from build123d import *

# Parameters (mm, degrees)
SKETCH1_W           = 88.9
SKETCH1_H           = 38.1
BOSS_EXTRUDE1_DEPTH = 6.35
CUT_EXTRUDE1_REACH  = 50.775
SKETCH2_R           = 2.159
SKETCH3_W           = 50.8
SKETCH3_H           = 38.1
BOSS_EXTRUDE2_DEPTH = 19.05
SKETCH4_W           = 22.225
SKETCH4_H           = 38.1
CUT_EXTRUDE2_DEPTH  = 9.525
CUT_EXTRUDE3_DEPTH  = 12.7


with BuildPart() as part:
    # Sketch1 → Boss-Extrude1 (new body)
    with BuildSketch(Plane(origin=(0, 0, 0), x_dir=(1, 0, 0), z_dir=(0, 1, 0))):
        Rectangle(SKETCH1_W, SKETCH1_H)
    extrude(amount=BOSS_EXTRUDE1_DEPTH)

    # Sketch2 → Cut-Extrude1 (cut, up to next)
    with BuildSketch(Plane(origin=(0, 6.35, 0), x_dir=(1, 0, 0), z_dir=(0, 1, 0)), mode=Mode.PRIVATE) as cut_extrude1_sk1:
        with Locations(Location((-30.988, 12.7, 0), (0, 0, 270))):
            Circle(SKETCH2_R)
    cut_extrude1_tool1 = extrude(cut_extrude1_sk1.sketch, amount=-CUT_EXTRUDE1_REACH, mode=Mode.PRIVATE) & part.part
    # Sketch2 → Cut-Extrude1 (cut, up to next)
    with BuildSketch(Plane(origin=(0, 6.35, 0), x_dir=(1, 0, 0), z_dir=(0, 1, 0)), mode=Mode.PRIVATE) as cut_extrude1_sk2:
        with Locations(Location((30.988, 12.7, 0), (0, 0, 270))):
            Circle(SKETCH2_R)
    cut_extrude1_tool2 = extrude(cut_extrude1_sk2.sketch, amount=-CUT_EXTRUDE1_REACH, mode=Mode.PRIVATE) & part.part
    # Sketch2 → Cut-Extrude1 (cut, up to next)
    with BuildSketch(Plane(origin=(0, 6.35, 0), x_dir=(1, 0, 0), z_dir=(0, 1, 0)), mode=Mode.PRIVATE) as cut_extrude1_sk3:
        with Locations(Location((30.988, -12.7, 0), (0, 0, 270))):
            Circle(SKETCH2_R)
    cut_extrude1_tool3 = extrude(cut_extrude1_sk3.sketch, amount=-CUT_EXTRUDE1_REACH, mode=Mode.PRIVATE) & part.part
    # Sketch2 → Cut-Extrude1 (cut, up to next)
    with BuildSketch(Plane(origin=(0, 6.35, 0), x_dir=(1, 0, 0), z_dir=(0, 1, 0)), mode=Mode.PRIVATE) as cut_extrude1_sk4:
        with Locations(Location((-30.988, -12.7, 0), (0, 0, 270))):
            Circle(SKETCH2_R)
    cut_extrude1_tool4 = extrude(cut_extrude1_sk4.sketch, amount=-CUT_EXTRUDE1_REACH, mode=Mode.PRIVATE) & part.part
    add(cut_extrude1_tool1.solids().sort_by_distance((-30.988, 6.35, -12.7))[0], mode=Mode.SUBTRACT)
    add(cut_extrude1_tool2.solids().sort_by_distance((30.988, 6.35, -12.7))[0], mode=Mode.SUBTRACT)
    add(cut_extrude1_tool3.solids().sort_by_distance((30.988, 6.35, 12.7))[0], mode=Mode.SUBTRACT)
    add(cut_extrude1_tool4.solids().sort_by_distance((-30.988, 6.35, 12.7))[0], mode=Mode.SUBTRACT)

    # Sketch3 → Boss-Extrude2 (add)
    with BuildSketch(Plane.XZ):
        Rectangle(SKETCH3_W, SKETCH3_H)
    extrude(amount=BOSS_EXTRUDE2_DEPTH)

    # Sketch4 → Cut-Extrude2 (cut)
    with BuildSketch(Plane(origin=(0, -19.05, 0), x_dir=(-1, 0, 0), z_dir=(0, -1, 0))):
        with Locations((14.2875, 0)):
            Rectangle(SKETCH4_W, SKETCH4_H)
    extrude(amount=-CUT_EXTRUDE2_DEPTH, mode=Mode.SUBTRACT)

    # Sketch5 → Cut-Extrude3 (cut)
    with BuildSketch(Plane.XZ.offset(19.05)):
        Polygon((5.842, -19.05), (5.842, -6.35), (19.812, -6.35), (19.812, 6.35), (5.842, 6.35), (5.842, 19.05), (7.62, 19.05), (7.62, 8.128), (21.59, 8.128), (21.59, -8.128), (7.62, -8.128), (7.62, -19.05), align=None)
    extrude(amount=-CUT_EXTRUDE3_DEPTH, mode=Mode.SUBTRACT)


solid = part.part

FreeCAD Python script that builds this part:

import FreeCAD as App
import Part
import Sketcher

V = App.Vector
Q = App.Units.Quantity

doc = App.newDocument("Part")
params = doc.addObject("Spreadsheet::Sheet", "Params")
for row, (alias, value) in enumerate([
    ("sketch1_width", "3.5 in"),
    ("sketch1_height", "1.5 in"),
    ("pad1_length", "0.25 in"),
    ("sketch2_diameter", "0.17 in"),
    ("sketch3_diameter", "0.17 in"),
    ("sketch4_diameter", "0.17 in"),
    ("sketch5_diameter", "0.17 in"),
    ("sketch6_width", "2 in"),
    ("sketch6_height", "1.5 in"),
    ("pad2_length", "0.75 in"),
    ("sketch7_height", "1.5 in"),
    ("sketch7_width", "0.875 in"),
    ("pocket5_length", "0.375 in"),
    ("sketch8_height", "0.5 in"),
    ("sketch8_width", "0.07 in"),
    ("sketch8_width2", "0.55 in"),
    ("sketch8_height2", "0.43 in"),
    ("pocket6_length", "0.5 in"),
], start=1):
    params.set(f"A{row}", alias)
    params.set(f"B{row}", "=" + value)
    params.setAlias(f"B{row}", alias)

body = doc.addObject("PartDesign::Body", "Body")

sketch1 = body.newObject("Sketcher::SketchObject", "Sketch")
sketch1.AttachmentSupport = (doc.getObject("XZ_Plane"), [""])
sketch1.MapMode = "FlatFace"
sketch1.addGeometry([
    Part.LineSegment(V(-44.45, -19.05, 0), V(-44.45, 19.05, 0)),
    Part.LineSegment(V(-44.45, 19.05, 0), V(44.45, 19.05, 0)),
    Part.LineSegment(V(44.45, 19.05, 0), V(44.45, -19.05, 0)),
    Part.LineSegment(V(44.45, -19.05, 0), V(-44.45, -19.05, 0)),
], False)
sketch1.addConstraint([
    Sketcher.Constraint("Coincident", 0, 2, 1, 1),
    Sketcher.Constraint("Coincident", 1, 2, 2, 1),
    Sketcher.Constraint("Coincident", 2, 2, 3, 1),
    Sketcher.Constraint("Coincident", 3, 2, 0, 1),
    Sketcher.Constraint("Vertical", 0),
    Sketcher.Constraint("Horizontal", 1),
    Sketcher.Constraint("Vertical", 2),
    Sketcher.Constraint("Horizontal", 3),
    Sketcher.Constraint("Symmetric", 0, 2, 2, 2, -1, 1),
    Sketcher.Constraint("DistanceX", 1, 1, 1, 2, Q("3.5 in")),
    Sketcher.Constraint("DistanceY", 0, 1, 0, 2, Q("1.5 in")),
])
sketch1.setExpression("Constraints[9]", "Params.sketch1_width")
sketch1.setExpression("Constraints[10]", "Params.sketch1_height")
pad1 = body.newObject("PartDesign::Pad", "Pad")
pad1.Profile = sketch1
pad1.setExpression("Length", "Params.pad1_length")
pad1.Reversed = True

sketch2 = body.newObject("Sketcher::SketchObject", "Sketch001")
sketch2.AttachmentSupport = (doc.getObject("XZ_Plane"), [""])
sketch2.MapMode = "FlatFace"
sketch2.AttachmentOffset = App.Placement(V(0, 0, -0.25 * 25.4), App.Rotation())
sketch2.addGeometry(Part.Circle(V(-30.988, -12.7, 0), V(0, 0, 1), 2.159), False)
sketch2.addConstraint([
    Sketcher.Constraint("Diameter", 0, Q("0.17 in")),
    Sketcher.Constraint("DistanceY", 0, 3, -1, 1, Q("0.5 in")),
    Sketcher.Constraint("DistanceX", 0, 3, -1, 1, Q("1.22 in")),
])
sketch2.setExpression("Constraints[0]", "Params.sketch2_diameter")
pocket1 = body.newObject("PartDesign::Pocket", "Pocket")
pocket1.Profile = sketch2
pocket1.Type = "UpToFirst"
pocket1.Reversed = True

sketch3 = body.newObject("Sketcher::SketchObject", "Sketch002")
sketch3.AttachmentSupport = (doc.getObject("XZ_Plane"), [""])
sketch3.MapMode = "FlatFace"
sketch3.AttachmentOffset = App.Placement(V(0, 0, -0.25 * 25.4), App.Rotation())
sketch3.addGeometry(Part.Circle(V(30.988, -12.7, 0), V(0, 0, 1), 2.159), False)
sketch3.addConstraint([
    Sketcher.Constraint("Diameter", 0, Q("0.17 in")),
    Sketcher.Constraint("DistanceY", 0, 3, -1, 1, Q("0.5 in")),
    Sketcher.Constraint("DistanceX", -1, 1, 0, 3, Q("1.22 in")),
])
sketch3.setExpression("Constraints[0]", "Params.sketch3_diameter")
pocket2 = body.newObject("PartDesign::Pocket", "Pocket001")
pocket2.Profile = sketch3
pocket2.Type = "UpToFirst"
pocket2.Reversed = True

sketch4 = body.newObject("Sketcher::SketchObject", "Sketch003")
sketch4.AttachmentSupport = (doc.getObject("XZ_Plane"), [""])
sketch4.MapMode = "FlatFace"
sketch4.AttachmentOffset = App.Placement(V(0, 0, -0.25 * 25.4), App.Rotation())
sketch4.addGeometry(Part.Circle(V(30.988, 12.7, 0), V(0, 0, 1), 2.159), False)
sketch4.addConstraint([
    Sketcher.Constraint("Diameter", 0, Q("0.17 in")),
    Sketcher.Constraint("DistanceY", -1, 1, 0, 3, Q("0.5 in")),
    Sketcher.Constraint("DistanceX", -1, 1, 0, 3, Q("1.22 in")),
])
sketch4.setExpression("Constraints[0]", "Params.sketch4_diameter")
pocket3 = body.newObject("PartDesign::Pocket", "Pocket002")
pocket3.Profile = sketch4
pocket3.Type = "UpToFirst"
pocket3.Reversed = True

sketch5 = body.newObject("Sketcher::SketchObject", "Sketch004")
sketch5.AttachmentSupport = (doc.getObject("XZ_Plane"), [""])
sketch5.MapMode = "FlatFace"
sketch5.AttachmentOffset = App.Placement(V(0, 0, -0.25 * 25.4), App.Rotation())
sketch5.addGeometry(Part.Circle(V(-30.988, 12.7, 0), V(0, 0, 1), 2.159), False)
sketch5.addConstraint([
    Sketcher.Constraint("Diameter", 0, Q("0.17 in")),
    Sketcher.Constraint("DistanceY", -1, 1, 0, 3, Q("0.5 in")),
    Sketcher.Constraint("DistanceX", 0, 3, -1, 1, Q("1.22 in")),
])
sketch5.setExpression("Constraints[0]", "Params.sketch5_diameter")
pocket4 = body.newObject("PartDesign::Pocket", "Pocket003")
pocket4.Profile = sketch5
pocket4.Type = "UpToFirst"
pocket4.Reversed = True

sketch6 = body.newObject("Sketcher::SketchObject", "Sketch005")
sketch6.AttachmentSupport = (doc.getObject("XZ_Plane"), [""])
sketch6.MapMode = "FlatFace"
sketch6.addGeometry([
    Part.LineSegment(V(-25.4, 19.05, 0), V(-25.4, -19.05, 0)),
    Part.LineSegment(V(-25.4, -19.05, 0), V(25.4, -19.05, 0)),
    Part.LineSegment(V(25.4, -19.05, 0), V(25.4, 19.05, 0)),
    Part.LineSegment(V(25.4, 19.05, 0), V(-25.4, 19.05, 0)),
], False)
sketch6.addConstraint([
    Sketcher.Constraint("Coincident", 0, 2, 1, 1),
    Sketcher.Constraint("Coincident", 1, 2, 2, 1),
    Sketcher.Constraint("Coincident", 2, 2, 3, 1),
    Sketcher.Constraint("Coincident", 3, 2, 0, 1),
    Sketcher.Constraint("Vertical", 0),
    Sketcher.Constraint("Horizontal", 1),
    Sketcher.Constraint("Vertical", 2),
    Sketcher.Constraint("Horizontal", 3),
    Sketcher.Constraint("Symmetric", 0, 2, 2, 2, -1, 1),
    Sketcher.Constraint("DistanceX", 1, 1, 1, 2, Q("2 in")),
    Sketcher.Constraint("DistanceY", 0, 2, 0, 1, Q("1.5 in")),
])
sketch6.setExpression("Constraints[9]", "Params.sketch6_width")
sketch6.setExpression("Constraints[10]", "Params.sketch6_height")
pad2 = body.newObject("PartDesign::Pad", "Pad001")
pad2.Profile = sketch6
pad2.setExpression("Length", "Params.pad2_length")

sketch7 = body.newObject("Sketcher::SketchObject", "Sketch006")
sketch7.AttachmentSupport = (doc.getObject("XZ_Plane"), [""])
sketch7.MapMode = "FlatFace"
sketch7.AttachmentOffset = App.Placement(V(0, 0, 0.75 * 25.4), App.Rotation())
sketch7.addGeometry([
    Part.LineSegment(V(-3.175, -19.05, 0), V(-3.175, 19.05, 0)),
    Part.LineSegment(V(-3.175, 19.05, 0), V(-25.4, 19.05, 0)),
    Part.LineSegment(V(-25.4, 19.05, 0), V(-25.4, -19.05, 0)),
    Part.LineSegment(V(-25.4, -19.05, 0), V(-3.175, -19.05, 0)),
], False)
sketch7.addConstraint([
    Sketcher.Constraint("Coincident", 0, 2, 1, 1),
    Sketcher.Constraint("Coincident", 1, 2, 2, 1),
    Sketcher.Constraint("Coincident", 2, 2, 3, 1),
    Sketcher.Constraint("Coincident", 3, 2, 0, 1),
    Sketcher.Constraint("Vertical", 0),
    Sketcher.Constraint("Horizontal", 1),
    Sketcher.Constraint("Vertical", 2),
    Sketcher.Constraint("Horizontal", 3),
    Sketcher.Constraint("DistanceY", 0, 1, 0, 2, Q("1.5 in")),
    Sketcher.Constraint("DistanceX", 1, 2, -1, 1, Q("1 in")),
    Sketcher.Constraint("DistanceX", 1, 2, 1, 1, Q("0.875 in")),
    Sketcher.Constraint("DistanceY", -1, 1, 0, 2, Q("0.75 in")),
])
sketch7.setExpression("Constraints[8]", "Params.sketch7_height")
sketch7.setExpression("Constraints[10]", "Params.sketch7_width")
pocket5 = body.newObject("PartDesign::Pocket", "Pocket004")
pocket5.Profile = sketch7
pocket5.setExpression("Length", "Params.pocket5_length")

sketch8 = body.newObject("Sketcher::SketchObject", "Sketch007")
sketch8.AttachmentSupport = (doc.getObject("XZ_Plane"), [""])
sketch8.MapMode = "FlatFace"
sketch8.AttachmentOffset = App.Placement(V(0, 0, 0.75 * 25.4), App.Rotation())
sketch8.addGeometry([
    Part.LineSegment(V(5.842, -6.35, 0), V(5.842, -19.05, 0)),
    Part.LineSegment(V(5.842, -19.05, 0), V(7.62, -19.05, 0)),
    Part.LineSegment(V(7.62, -19.05, 0), V(7.62, -8.128, 0)),
    Part.LineSegment(V(7.62, -8.128, 0), V(21.59, -8.128, 0)),
    Part.LineSegment(V(21.59, -8.128, 0), V(21.59, 8.128, 0)),
    Part.LineSegment(V(21.59, 8.128, 0), V(7.62, 8.128, 0)),
    Part.LineSegment(V(7.62, 8.128, 0), V(7.62, 19.05, 0)),
    Part.LineSegment(V(7.62, 19.05, 0), V(5.842, 19.05, 0)),
    Part.LineSegment(V(5.842, 19.05, 0), V(5.842, 6.35, 0)),
    Part.LineSegment(V(5.842, 6.35, 0), V(19.812, 6.35, 0)),
    Part.LineSegment(V(19.812, 6.35, 0), V(19.812, -6.35, 0)),
    Part.LineSegment(V(19.812, -6.35, 0), V(5.842, -6.35, 0)),
], False)
sketch8.addConstraint([
    Sketcher.Constraint("Coincident", 0, 2, 1, 1),
    Sketcher.Constraint("Coincident", 1, 2, 2, 1),
    Sketcher.Constraint("Coincident", 2, 2, 3, 1),
    Sketcher.Constraint("Coincident", 3, 2, 4, 1),
    Sketcher.Constraint("Coincident", 4, 2, 5, 1),
    Sketcher.Constraint("Coincident", 5, 2, 6, 1),
    Sketcher.Constraint("Coincident", 6, 2, 7, 1),
    Sketcher.Constraint("Coincident", 7, 2, 8, 1),
    Sketcher.Constraint("Coincident", 8, 2, 9, 1),
    Sketcher.Constraint("Coincident", 9, 2, 10, 1),
    Sketcher.Constraint("Coincident", 10, 2, 11, 1),
    Sketcher.Constraint("Coincident", 11, 2, 0, 1),
    Sketcher.Constraint("Vertical", 0),
    Sketcher.Constraint("Horizontal", 1),
    Sketcher.Constraint("Vertical", 2),
    Sketcher.Constraint("Horizontal", 3),
    Sketcher.Constraint("Vertical", 4),
    Sketcher.Constraint("Horizontal", 5),
    Sketcher.Constraint("Vertical", 6),
    Sketcher.Constraint("Horizontal", 7),
    Sketcher.Constraint("Vertical", 8),
    Sketcher.Constraint("Horizontal", 9),
    Sketcher.Constraint("Vertical", 10),
    Sketcher.Constraint("Horizontal", 11),
    Sketcher.Constraint("Symmetric", 2, 2, 5, 2, -1),
    Sketcher.Constraint("Symmetric", 0, 2, 7, 2, -1),
    Sketcher.Constraint("Equal", 5, 9),
    Sketcher.Constraint("Equal", 0, 8),
    Sketcher.Constraint("Equal", 8, 10),
    Sketcher.Constraint("DistanceY", 0, 2, 0, 1, Q("0.5 in")),
    Sketcher.Constraint("DistanceX", 1, 1, 1, 2, Q("0.07 in")),
    Sketcher.Constraint("DistanceX", 3, 1, 3, 2, Q("0.55 in")),
    Sketcher.Constraint("DistanceY", 2, 1, 2, 2, Q("0.43 in")),
    Sketcher.Constraint("DistanceX", -1, 1, 1, 2, Q("0.3 in")),
])
sketch8.setExpression("Constraints[29]", "Params.sketch8_height")
sketch8.setExpression("Constraints[30]", "Params.sketch8_width")
sketch8.setExpression("Constraints[31]", "Params.sketch8_width2")
sketch8.setExpression("Constraints[32]", "Params.sketch8_height2")
pocket6 = body.newObject("PartDesign::Pocket", "Pocket005")
pocket6.Profile = sketch8
pocket6.setExpression("Length", "Params.pocket6_length")

doc.recompute()
